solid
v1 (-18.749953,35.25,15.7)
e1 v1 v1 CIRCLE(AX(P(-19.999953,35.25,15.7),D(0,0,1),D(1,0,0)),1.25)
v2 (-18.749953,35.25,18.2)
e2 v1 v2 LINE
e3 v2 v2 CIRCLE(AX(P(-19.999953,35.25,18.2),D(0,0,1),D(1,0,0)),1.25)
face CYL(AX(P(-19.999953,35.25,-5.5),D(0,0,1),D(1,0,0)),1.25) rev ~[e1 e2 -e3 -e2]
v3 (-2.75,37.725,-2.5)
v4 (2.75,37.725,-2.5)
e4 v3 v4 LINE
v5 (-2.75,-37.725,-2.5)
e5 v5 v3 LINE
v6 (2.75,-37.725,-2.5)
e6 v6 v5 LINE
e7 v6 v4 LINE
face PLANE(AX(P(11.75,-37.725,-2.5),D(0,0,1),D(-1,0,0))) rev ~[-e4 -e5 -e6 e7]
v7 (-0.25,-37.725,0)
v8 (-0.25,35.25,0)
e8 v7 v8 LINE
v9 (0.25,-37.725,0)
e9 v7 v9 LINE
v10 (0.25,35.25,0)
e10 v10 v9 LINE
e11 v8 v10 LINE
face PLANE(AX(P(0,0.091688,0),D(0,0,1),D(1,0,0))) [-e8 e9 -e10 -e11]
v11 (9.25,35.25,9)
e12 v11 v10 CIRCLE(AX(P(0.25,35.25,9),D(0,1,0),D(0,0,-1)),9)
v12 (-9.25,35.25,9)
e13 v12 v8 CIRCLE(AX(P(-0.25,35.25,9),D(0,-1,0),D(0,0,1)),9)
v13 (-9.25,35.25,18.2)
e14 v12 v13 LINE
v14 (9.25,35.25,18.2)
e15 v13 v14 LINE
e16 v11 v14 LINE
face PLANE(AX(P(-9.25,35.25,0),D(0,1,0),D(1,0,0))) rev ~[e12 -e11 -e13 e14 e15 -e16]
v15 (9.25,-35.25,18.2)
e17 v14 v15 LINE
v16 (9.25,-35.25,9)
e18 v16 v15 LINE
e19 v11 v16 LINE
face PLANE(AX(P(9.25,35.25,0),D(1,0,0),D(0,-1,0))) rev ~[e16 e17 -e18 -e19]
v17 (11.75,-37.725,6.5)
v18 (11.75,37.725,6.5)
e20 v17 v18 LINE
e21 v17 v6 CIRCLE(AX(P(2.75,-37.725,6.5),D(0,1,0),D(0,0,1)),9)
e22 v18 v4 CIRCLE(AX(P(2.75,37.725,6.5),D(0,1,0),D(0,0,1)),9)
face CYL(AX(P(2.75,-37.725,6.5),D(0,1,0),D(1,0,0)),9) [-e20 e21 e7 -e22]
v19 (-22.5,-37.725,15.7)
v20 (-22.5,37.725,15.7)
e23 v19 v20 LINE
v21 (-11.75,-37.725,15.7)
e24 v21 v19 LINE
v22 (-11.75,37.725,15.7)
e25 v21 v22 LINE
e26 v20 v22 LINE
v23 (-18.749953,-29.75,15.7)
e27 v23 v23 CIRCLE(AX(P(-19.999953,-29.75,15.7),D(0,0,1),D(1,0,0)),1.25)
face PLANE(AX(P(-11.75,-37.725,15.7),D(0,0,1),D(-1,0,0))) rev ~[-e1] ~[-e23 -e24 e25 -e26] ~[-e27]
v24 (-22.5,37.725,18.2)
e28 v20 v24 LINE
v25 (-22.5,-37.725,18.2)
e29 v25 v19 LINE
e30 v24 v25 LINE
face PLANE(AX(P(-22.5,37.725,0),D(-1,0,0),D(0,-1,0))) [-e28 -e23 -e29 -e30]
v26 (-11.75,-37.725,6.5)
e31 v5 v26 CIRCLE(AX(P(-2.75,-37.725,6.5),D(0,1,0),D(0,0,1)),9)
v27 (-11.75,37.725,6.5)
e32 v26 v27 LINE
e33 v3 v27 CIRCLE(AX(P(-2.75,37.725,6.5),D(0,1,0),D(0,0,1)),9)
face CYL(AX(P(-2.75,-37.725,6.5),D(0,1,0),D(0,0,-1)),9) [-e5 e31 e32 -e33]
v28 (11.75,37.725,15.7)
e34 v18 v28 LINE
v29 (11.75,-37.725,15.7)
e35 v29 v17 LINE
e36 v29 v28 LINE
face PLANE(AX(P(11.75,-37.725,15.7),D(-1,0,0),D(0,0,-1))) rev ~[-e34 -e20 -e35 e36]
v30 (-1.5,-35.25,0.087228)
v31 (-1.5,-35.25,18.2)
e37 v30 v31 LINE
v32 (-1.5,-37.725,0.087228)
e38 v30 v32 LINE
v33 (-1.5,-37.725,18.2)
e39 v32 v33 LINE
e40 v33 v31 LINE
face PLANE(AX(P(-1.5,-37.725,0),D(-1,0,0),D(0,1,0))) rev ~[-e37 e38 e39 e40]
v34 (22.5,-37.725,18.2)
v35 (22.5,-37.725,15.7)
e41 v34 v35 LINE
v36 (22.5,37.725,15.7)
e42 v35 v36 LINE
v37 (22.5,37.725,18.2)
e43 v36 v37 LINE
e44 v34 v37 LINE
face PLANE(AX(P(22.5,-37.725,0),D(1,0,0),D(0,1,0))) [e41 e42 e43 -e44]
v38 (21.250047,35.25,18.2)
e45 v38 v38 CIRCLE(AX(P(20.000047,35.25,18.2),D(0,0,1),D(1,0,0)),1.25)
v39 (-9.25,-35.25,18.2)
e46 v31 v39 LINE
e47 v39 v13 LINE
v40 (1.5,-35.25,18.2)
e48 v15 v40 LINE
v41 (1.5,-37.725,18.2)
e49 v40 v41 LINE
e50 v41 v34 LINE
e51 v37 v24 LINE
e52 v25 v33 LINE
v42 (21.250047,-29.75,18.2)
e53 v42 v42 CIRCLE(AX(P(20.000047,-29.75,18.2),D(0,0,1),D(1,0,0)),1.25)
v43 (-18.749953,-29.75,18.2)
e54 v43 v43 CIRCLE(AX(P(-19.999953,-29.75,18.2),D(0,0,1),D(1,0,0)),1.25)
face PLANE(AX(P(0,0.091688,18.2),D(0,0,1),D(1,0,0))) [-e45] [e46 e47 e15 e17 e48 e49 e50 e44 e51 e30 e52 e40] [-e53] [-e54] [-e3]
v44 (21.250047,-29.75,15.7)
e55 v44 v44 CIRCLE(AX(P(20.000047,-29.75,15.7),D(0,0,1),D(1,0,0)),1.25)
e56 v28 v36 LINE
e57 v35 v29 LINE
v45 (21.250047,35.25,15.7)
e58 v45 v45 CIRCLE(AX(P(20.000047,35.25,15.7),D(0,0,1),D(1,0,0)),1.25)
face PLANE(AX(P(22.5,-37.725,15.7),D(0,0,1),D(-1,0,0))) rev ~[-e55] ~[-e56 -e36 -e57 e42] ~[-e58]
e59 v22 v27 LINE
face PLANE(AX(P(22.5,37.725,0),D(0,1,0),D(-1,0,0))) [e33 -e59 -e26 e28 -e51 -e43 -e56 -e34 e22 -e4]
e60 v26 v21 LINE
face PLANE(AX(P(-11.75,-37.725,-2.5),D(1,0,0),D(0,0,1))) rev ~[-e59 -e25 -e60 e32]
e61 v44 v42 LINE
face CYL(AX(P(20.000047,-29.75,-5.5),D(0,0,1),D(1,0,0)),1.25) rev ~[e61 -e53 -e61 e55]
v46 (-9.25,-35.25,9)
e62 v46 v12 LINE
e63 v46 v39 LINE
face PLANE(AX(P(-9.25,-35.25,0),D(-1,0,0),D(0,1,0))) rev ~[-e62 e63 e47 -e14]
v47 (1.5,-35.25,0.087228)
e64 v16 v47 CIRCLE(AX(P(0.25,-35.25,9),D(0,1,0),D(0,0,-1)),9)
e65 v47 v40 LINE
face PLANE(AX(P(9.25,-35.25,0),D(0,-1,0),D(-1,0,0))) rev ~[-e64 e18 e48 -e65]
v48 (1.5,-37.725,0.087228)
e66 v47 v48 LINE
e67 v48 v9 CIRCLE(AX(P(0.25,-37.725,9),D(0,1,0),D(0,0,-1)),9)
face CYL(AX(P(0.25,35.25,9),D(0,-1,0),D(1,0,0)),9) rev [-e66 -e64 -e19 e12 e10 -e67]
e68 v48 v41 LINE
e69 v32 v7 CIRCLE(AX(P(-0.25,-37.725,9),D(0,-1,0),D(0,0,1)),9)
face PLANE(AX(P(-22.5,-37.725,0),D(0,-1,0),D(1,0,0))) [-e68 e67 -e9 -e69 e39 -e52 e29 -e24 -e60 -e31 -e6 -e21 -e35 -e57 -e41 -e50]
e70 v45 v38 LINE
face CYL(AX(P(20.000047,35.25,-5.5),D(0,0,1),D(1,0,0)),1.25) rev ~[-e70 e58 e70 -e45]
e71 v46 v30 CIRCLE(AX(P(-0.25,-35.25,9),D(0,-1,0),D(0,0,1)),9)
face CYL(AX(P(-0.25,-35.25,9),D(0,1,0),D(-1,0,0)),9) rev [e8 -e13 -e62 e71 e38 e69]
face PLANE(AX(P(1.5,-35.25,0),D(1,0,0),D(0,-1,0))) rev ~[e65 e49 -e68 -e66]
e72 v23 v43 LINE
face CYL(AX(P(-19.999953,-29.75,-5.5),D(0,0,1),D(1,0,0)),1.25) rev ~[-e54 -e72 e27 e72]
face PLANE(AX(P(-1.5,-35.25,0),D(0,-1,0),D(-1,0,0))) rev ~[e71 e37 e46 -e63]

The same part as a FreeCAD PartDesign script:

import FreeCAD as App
import Part
import Sketcher
from FreeCAD import Vector
Q = App.Units.Quantity


def edges_at(feature, points):
    """Names of the edges that pass closest to the given points."""
    edges = feature.Shape.Edges
    near = lambda p: min(range(len(edges)), key=lambda i: edges[i].distToShape(Part.Vertex(*p))[0])
    return sorted({f"Edge{near(p) + 1}" for p in points})


def add_polygon(sketch, points):
    """Adds a closed chain of lines whose ends are joined by coincident constraints."""
    first, n = sketch.GeometryCount, len(points)
    for a, b in zip(points, points[1:] + points[:1]):
        sketch.addGeometry(Part.LineSegment(App.Vector(*a, 0), App.Vector(*b, 0)), False)
    for i in range(n):
        sketch.addConstraint(Sketcher.Constraint("Coincident", first + i, 2, first + (i + 1) % n, 1))

doc = App.newDocument("Part")
body = doc.addObject("PartDesign::Body", "Body")

sketch1 = body.newObject("Sketcher::SketchObject", "Sketch")
sketch1.AttachmentSupport = (doc.getObject("XY_Plane"), [""])
sketch1.MapMode = "FlatFace"
add_polygon(sketch1, [(1.5, -37.725), (22.5, -37.725), (22.5, 37.725), (-22.5, 37.725), (-22.5, -37.725), (-1.5, -37.725), (-1.5, -35.25), (-9.25, -35.25), (-9.25, 35.25), (9.25, 35.25), (9.25, -35.25), (1.5, -35.25)])
sketch1.addConstraint(Sketcher.Constraint("Horizontal", 0))
sketch1.addConstraint(Sketcher.Constraint("Vertical", 1))
sketch1.addConstraint(Sketcher.Constraint("Horizontal", 2))
sketch1.addConstraint(Sketcher.Constraint("Vertical", 3))
sketch1.addConstraint(Sketcher.Constraint("Horizontal", 4))
sketch1.addConstraint(Sketcher.Constraint("Vertical", 5))
sketch1.addConstraint(Sketcher.Constraint("Horizontal", 6))
sketch1.addConstraint(Sketcher.Constraint("Vertical", 7))
sketch1.addConstraint(Sketcher.Constraint("Horizontal", 8))
sketch1.addConstraint(Sketcher.Constraint("Vertical", 9))
sketch1.addConstraint(Sketcher.Constraint("Horizontal", 10))
sketch1.addConstraint(Sketcher.Constraint("Vertical", 11))
sketch1.addConstraint(Sketcher.Constraint("Symmetric", 0, 2, 2, 2, -1, 1))
sketch1.addConstraint(Sketcher.Constraint("Symmetric", 6, 2, 8, 2, -1, 1))
sketch1.addConstraint(Sketcher.Constraint("Symmetric", 5, 2, 10, 2, -2))
sketch1.addConstraint(Sketcher.Constraint("Horizontal", 0, 2, 3, 2))
sketch1.addConstraint(Sketcher.Constraint("DistanceX", 0, 1, 0, 2, Q("21 mm")))
sketch1.addConstraint(Sketcher.Constraint("DistanceX", 2, 2, 2, 1, Q("45 mm")))
sketch1.addConstraint(Sketcher.Constraint("DistanceX", 8, 1, 8, 2, Q("18.5 mm")))
sketch1.addConstraint(Sketcher.Constraint("DistanceY", 7, 1, 7, 2, Q("70.5 mm")))
sketch1.addConstraint(Sketcher.Constraint("DistanceY", 1, 1, 1, 2, Q("75.45 mm")))
pad1 = body.newObject("PartDesign::Pad", "Pad")
pad1.Profile = sketch1
pad1.Length = 18.2

sketch2 = body.newObject("Sketcher::SketchObject", "Sketch001")
sketch2.AttachmentSupport = (doc.getObject("XY_Plane"), [""])
sketch2.MapMode = "FlatFace"
add_polygon(sketch2, [(22.5, -37.725), (22.5, 37.725), (-22.5, 37.725), (-22.5, -37.725)])
sketch2.addConstraint(Sketcher.Constraint("Vertical", 0))
sketch2.addConstraint(Sketcher.Constraint("Horizontal", 1))
sketch2.addConstraint(Sketcher.Constraint("Vertical", 2))
sketch2.addConstraint(Sketcher.Constraint("Horizontal", 3))
sketch2.addConstraint(Sketcher.Constraint("Symmetric", 0, 2, 2, 2, -1, 1))
sketch2.addConstraint(Sketcher.Constraint("DistanceX", 1, 2, 1, 1, Q("45 mm")))
sketch2.addConstraint(Sketcher.Constraint("DistanceY", 0, 1, 0, 2, Q("75.45 mm")))
pad2 = body.newObject("PartDesign::Pad", "Pad001")
pad2.Profile = sketch2
pad2.Length = 5.5
pad2.Reversed = True
doc.recompute()

fillet = body.newObject("PartDesign::Fillet", "Fillet")
fillet.Base = (pad2, edges_at(pad2, [(-9.25, 0, 0), (9.25, 0, 0)]))
fillet.Radius = 9

sketch3 = body.newObject("Sketcher::SketchObject", "Sketch002")
sketch3.AttachmentSupport = (doc.getObject("XZ_Plane"), [""])
sketch3.MapMode = "FlatFace"
sketch3.AttachmentOffset = App.Placement(Vector(0, 0, 37.725), App.Rotation())
add_polygon(sketch3, [(22.5, -5.5), (22.5, 15.7), (11.75, 15.7), (11.75, -2.5), (-11.75, -2.5), (-11.75, 15.7), (-22.5, 15.7), (-22.5, -5.5)])
sketch3.addConstraint(Sketcher.Constraint("Vertical", 0))
sketch3.addConstraint(Sketcher.Constraint("Horizontal", 1))
sketch3.addConstraint(Sketcher.Constraint("Vertical", 2))
sketch3.addConstraint(Sketcher.Constraint("Horizontal", 3))
sketch3.addConstraint(Sketcher.Constraint("Vertical", 4))
sketch3.addConstraint(Sketcher.Constraint("Horizontal", 5))
sketch3.addConstraint(Sketcher.Constraint("Vertical", 6))
sketch3.addConstraint(Sketcher.Constraint("Horizontal", 7))
sketch3.addConstraint(Sketcher.Constraint("Symmetric", 1, 2, 4, 2, -2))
sketch3.addConstraint(Sketcher.Constraint("Equal", 1, 5))
sketch3.addConstraint(Sketcher.Constraint("DistanceX", 7, 1, 7, 2, Q("45 mm")))
sketch3.addConstraint(Sketcher.Constraint("DistanceX", 3, 2, 3, 1, Q("23.5 mm")))
sketch3.addConstraint(Sketcher.Constraint("DistanceY", 0, 1, 0, 2, Q("21.2 mm")))
sketch3.addConstraint(Sketcher.Constraint("DistanceY", 2, 2, 2, 1, Q("18.2 mm")))
sketch3.addConstraint(Sketcher.Constraint("DistanceY", -1, 1, 0, 2, Q("15.7 mm")))
pocket1 = body.newObject("PartDesign::Pocket", "Pocket")
pocket1.Profile = sketch3
pocket1.Length = 103

sketch4 = body.newObject("Sketcher::SketchObject", "Sketch003")
sketch4.AttachmentSupport = (doc.getObject("XY_Plane"), [""])
sketch4.MapMode = "FlatFace"
sketch4.AttachmentOffset = App.Placement(Vector(0, 0, -5.5), App.Rotation())
sketch4.addGeometry(Part.Circle(Vector(-19.999953, 35.25, 0), Vector(0, 0, 1), 1.25), False)
sketch4.addGeometry(Part.Circle(Vector(20.000047, 35.25, 0), Vector(0, 0, 1), 1.25), False)
sketch4.addGeometry(Part.Circle(Vector(20.000047, -29.75, 0), Vector(0, 0, 1), 1.25), False)
sketch4.addGeometry(Part.Circle(Vector(-19.999953, -29.75, 0), Vector(0, 0, 1), 1.25), False)
sketch4.addConstraint(Sketcher.Constraint("Equal", 0, 1))
sketch4.addConstraint(Sketcher.Constraint("Equal", 1, 2))
sketch4.addConstraint(Sketcher.Constraint("Equal", 2, 3))
sketch4.addConstraint(Sketcher.Constraint("Horizontal", 0, 3, 1, 3))
sketch4.addConstraint(Sketcher.Constraint("Horizontal", 2, 3, 3, 3))
sketch4.addConstraint(Sketcher.Constraint("Vertical", 1, 3, 2, 3))
sketch4.addConstraint(Sketcher.Constraint("Vertical", 0, 3, 3, 3))
sketch4.addConstraint(Sketcher.Constraint("Diameter", 0, Q("2.5 mm")))
sketch4.addConstraint(Sketcher.Constraint("DistanceX", 0, 3, 1, 3, Q("40 mm")))
sketch4.addConstraint(Sketcher.Constraint("DistanceY", 2, 3, 1, 3, Q("65 mm")))
sketch4.addConstraint(Sketcher.Constraint("DistanceY", -1, 1, 0, 3, Q("35.25 mm")))
sketch4.addConstraint(Sketcher.Constraint("DistanceX", 0, 3, -1, 1, Q("19.999953 mm")))
doc.recompute()
hole = body.newObject("PartDesign::Hole", "Hole")
hole.Profile = sketch4
hole.ThreadType = "None"
hole.Diameter = 2.5
hole.DepthType = "ThroughAll"
hole.HoleCutType = "Countersink"
hole.HoleCutDiameter = 2.55
hole.HoleCutCountersinkAngle = 90
hole.Reversed = True
doc.recompute()

fillet2 = body.newObject("PartDesign::Fillet", "Fillet001")
fillet2.Base = (hole, edges_at(hole, [(-11.75, 0, -2.5), (11.75, 0, -2.5)]))
fillet2.Radius = 9

doc.recompute()
